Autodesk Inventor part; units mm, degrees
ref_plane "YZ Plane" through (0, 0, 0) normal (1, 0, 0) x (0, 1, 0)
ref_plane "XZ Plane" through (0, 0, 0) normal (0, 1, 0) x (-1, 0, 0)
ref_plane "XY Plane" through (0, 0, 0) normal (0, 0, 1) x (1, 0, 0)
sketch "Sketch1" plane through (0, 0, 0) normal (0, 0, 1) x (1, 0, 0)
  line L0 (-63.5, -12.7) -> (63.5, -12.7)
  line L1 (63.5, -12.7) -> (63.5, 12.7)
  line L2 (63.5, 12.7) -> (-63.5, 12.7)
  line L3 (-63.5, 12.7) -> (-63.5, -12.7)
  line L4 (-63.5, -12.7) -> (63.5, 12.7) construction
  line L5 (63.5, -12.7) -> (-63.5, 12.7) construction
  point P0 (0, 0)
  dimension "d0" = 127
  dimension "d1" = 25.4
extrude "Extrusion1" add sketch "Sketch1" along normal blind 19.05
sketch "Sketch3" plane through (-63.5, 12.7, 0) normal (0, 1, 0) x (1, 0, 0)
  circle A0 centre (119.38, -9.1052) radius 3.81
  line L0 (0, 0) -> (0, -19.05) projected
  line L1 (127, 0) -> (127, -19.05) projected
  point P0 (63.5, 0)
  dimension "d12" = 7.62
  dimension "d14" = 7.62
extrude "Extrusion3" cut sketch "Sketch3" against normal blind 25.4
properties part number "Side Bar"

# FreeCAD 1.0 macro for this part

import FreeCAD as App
import Part
import Sketcher

V = App.Vector
Q = App.Units.Quantity


def add_polygon(sketch, points):
    """Adds a closed chain of lines whose ends are joined by coincident constraints."""
    first, n = sketch.GeometryCount, len(points)
    for a, b in zip(points, points[1:] + points[:1]):
        sketch.addGeometry(Part.LineSegment(App.Vector(*a, 0), App.Vector(*b, 0)), False)
    for i in range(n):
        sketch.addConstraint(Sketcher.Constraint("Coincident", first + i, 2, first + (i + 1) % n, 1))

doc = App.newDocument("Part")
params = doc.addObject("Spreadsheet::Sheet", "Params")
for row, (alias, value) in enumerate([
    ("sketch1_width", "5 in"),
    ("sketch1_height", "1 in"),
    ("pad1_length", "0.75 in"),
    ("sketch2_diameter", "0.3 in"),
    ("pocket1_length", "1 in"),
], start=1):
    params.set(f"A{row}", alias)
    params.set(f"B{row}", "=" + value)
    params.setAlias(f"B{row}", alias)

body = doc.addObject("PartDesign::Body", "Body")

sketch1 = body.newObject("Sketcher::SketchObject", "Sketch")
sketch1.AttachmentSupport = (doc.getObject("XY_Plane"), [""])
sketch1.MapMode = "FlatFace"
add_polygon(sketch1, [(-64, 13), (-64, -13), (64, -13), (64, 13)])
sketch1.addConstraint([
    Sketcher.Constraint("Vertical", 0),
    Sketcher.Constraint("Horizontal", 1),
    Sketcher.Constraint("Vertical", 2),
    Sketcher.Constraint("Horizontal", 3),
    Sketcher.Constraint("Symmetric", 0, 2, 2, 2, -1, 1),
    Sketcher.Constraint("DistanceX", 1, 1, 1, 2, Q("5 in")),
    Sketcher.Constraint("DistanceY", 0, 2, 0, 1, Q("1 in")),
])
sketch1.setExpression("Constraints[9]", "Params.sketch1_width")
sketch1.setExpression("Constraints[10]", "Params.sketch1_height")
pad1 = body.newObject("PartDesign::Pad", "Pad")
pad1.Profile = sketch1
pad1.setExpression("Length", "Params.pad1_length")

sketch2 = body.newObject("Sketcher::SketchObject", "Sketch001")
sketch2.AttachmentSupport = (doc.getObject("XZ_Plane"), [""])
sketch2.MapMode = "FlatFace"
sketch2.AttachmentOffset = App.Placement(V(0, 0, -0.5 * 25.4), App.Rotation())
sketch2.addGeometry(Part.Circle(V(55.9, 9.1, 0), V(0, 0, 1), 3.8), False)
sketch2.addConstraint([
    Sketcher.Constraint("Diameter", 0, Q("0.3 in")),
    Sketcher.Constraint("DistanceX", -1, 1, 0, 3, Q("2.2 in")),
    Sketcher.Constraint("DistanceY", -1, 1, 0, 3, 9.1052),
])
sketch2.setExpression("Constraints[0]", "Params.sketch2_diameter")
pocket1 = body.newObject("PartDesign::Pocket", "Pocket")
pocket1.Profile = sketch2
pocket1.setExpression("Length", "Params.pocket1_length")
pocket1.Reversed = True

doc.recompute()
